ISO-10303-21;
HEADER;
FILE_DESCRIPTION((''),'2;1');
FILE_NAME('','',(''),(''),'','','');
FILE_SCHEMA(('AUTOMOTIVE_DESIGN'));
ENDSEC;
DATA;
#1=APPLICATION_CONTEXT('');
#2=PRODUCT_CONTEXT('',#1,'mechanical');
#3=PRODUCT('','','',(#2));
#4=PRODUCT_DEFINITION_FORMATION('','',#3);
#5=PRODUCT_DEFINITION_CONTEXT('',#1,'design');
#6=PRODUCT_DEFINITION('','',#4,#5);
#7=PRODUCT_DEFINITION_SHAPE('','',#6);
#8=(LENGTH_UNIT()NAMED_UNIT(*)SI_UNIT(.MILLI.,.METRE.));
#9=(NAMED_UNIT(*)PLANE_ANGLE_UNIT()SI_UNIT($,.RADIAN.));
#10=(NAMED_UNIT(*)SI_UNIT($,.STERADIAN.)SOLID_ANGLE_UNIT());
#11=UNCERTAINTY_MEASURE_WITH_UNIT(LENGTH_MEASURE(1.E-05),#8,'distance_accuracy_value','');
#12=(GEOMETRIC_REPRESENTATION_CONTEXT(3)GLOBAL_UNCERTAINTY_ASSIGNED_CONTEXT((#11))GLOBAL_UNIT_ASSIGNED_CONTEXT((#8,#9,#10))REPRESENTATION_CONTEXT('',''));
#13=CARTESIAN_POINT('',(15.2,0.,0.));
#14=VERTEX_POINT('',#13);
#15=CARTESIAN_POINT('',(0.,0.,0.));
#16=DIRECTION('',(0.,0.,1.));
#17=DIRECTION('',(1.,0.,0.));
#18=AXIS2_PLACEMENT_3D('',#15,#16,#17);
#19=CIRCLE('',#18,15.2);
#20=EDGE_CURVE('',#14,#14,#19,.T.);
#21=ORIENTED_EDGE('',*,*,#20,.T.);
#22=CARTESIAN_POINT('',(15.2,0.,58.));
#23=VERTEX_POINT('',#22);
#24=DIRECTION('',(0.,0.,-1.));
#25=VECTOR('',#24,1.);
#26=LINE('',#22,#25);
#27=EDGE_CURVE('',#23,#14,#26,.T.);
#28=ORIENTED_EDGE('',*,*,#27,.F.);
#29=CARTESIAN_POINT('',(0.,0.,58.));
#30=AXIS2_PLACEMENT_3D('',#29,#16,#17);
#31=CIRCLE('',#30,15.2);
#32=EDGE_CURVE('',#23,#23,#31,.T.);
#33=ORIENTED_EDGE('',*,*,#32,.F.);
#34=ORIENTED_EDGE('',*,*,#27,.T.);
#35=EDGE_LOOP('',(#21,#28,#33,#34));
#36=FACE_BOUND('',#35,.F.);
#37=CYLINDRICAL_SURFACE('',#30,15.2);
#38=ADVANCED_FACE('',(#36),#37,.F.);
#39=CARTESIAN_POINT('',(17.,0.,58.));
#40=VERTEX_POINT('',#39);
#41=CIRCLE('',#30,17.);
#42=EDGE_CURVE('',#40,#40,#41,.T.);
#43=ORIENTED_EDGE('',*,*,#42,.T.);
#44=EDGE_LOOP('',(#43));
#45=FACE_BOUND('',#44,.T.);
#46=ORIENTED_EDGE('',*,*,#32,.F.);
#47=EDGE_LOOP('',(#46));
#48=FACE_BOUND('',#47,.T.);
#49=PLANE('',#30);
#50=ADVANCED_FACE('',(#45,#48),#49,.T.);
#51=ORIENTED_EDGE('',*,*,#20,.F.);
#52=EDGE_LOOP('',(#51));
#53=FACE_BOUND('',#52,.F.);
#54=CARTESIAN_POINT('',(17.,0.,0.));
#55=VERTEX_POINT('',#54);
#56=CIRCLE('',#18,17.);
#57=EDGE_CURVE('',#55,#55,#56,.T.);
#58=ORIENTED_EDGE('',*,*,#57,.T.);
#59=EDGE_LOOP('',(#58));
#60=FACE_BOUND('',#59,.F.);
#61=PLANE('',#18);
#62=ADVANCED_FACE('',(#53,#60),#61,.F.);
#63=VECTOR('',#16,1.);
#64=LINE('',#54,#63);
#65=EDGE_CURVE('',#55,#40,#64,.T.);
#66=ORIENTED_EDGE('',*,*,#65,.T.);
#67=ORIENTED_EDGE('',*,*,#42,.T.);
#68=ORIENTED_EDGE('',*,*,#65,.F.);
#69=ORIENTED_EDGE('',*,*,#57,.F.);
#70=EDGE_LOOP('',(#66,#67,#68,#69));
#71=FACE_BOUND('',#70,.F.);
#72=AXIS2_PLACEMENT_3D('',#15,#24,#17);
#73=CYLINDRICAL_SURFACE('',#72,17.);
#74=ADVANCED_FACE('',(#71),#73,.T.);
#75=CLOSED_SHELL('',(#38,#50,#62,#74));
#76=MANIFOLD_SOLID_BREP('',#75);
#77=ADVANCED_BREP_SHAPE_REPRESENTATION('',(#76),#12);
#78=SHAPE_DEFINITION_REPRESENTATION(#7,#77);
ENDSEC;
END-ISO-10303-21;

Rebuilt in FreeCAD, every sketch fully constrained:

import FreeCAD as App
import Part
import Sketcher

V = App.Vector
Q = App.Units.Quantity

doc = App.newDocument("Part")
body = doc.addObject("PartDesign::Body", "Body")

# Sketch on XY plane
sketch1 = body.newObject("Sketcher::SketchObject", "Sketch")
sketch1.AttachmentSupport = (doc.getObject("XY_Plane"), [""])
sketch1.MapMode = "FlatFace"
sketch1.addGeometry(Part.Circle(V(0, 0, 0), V(0, 0, 1), 17), False)
sketch1.addConstraint([
    Sketcher.Constraint("Coincident", 0, 3, -1, 1),
    Sketcher.Constraint("Diameter", 0, Q("34 mm")),
])
pad1 = body.newObject("PartDesign::Pad", "Pad")
pad1.Profile = sketch1
pad1.Length = 58

# Sketch on XY plane
sketch2 = body.newObject("Sketcher::SketchObject", "Sketch001")
sketch2.AttachmentSupport = (doc.getObject("XY_Plane"), [""])
sketch2.MapMode = "FlatFace"
sketch2.AttachmentOffset = App.Placement(V(0, 0, 58), App.Rotation())
sketch2.addGeometry(Part.Circle(V(0, 0, 0), V(0, 0, 1), 15.2), False)
sketch2.addConstraint([
    Sketcher.Constraint("Coincident", 0, 3, -1, 1),
    Sketcher.Constraint("Diameter", 0, Q("30.4 mm")),
])
pocket1 = body.newObject("PartDesign::Pocket", "Pocket")
pocket1.Profile = sketch2
pocket1.Length = 58

doc.recompute()
